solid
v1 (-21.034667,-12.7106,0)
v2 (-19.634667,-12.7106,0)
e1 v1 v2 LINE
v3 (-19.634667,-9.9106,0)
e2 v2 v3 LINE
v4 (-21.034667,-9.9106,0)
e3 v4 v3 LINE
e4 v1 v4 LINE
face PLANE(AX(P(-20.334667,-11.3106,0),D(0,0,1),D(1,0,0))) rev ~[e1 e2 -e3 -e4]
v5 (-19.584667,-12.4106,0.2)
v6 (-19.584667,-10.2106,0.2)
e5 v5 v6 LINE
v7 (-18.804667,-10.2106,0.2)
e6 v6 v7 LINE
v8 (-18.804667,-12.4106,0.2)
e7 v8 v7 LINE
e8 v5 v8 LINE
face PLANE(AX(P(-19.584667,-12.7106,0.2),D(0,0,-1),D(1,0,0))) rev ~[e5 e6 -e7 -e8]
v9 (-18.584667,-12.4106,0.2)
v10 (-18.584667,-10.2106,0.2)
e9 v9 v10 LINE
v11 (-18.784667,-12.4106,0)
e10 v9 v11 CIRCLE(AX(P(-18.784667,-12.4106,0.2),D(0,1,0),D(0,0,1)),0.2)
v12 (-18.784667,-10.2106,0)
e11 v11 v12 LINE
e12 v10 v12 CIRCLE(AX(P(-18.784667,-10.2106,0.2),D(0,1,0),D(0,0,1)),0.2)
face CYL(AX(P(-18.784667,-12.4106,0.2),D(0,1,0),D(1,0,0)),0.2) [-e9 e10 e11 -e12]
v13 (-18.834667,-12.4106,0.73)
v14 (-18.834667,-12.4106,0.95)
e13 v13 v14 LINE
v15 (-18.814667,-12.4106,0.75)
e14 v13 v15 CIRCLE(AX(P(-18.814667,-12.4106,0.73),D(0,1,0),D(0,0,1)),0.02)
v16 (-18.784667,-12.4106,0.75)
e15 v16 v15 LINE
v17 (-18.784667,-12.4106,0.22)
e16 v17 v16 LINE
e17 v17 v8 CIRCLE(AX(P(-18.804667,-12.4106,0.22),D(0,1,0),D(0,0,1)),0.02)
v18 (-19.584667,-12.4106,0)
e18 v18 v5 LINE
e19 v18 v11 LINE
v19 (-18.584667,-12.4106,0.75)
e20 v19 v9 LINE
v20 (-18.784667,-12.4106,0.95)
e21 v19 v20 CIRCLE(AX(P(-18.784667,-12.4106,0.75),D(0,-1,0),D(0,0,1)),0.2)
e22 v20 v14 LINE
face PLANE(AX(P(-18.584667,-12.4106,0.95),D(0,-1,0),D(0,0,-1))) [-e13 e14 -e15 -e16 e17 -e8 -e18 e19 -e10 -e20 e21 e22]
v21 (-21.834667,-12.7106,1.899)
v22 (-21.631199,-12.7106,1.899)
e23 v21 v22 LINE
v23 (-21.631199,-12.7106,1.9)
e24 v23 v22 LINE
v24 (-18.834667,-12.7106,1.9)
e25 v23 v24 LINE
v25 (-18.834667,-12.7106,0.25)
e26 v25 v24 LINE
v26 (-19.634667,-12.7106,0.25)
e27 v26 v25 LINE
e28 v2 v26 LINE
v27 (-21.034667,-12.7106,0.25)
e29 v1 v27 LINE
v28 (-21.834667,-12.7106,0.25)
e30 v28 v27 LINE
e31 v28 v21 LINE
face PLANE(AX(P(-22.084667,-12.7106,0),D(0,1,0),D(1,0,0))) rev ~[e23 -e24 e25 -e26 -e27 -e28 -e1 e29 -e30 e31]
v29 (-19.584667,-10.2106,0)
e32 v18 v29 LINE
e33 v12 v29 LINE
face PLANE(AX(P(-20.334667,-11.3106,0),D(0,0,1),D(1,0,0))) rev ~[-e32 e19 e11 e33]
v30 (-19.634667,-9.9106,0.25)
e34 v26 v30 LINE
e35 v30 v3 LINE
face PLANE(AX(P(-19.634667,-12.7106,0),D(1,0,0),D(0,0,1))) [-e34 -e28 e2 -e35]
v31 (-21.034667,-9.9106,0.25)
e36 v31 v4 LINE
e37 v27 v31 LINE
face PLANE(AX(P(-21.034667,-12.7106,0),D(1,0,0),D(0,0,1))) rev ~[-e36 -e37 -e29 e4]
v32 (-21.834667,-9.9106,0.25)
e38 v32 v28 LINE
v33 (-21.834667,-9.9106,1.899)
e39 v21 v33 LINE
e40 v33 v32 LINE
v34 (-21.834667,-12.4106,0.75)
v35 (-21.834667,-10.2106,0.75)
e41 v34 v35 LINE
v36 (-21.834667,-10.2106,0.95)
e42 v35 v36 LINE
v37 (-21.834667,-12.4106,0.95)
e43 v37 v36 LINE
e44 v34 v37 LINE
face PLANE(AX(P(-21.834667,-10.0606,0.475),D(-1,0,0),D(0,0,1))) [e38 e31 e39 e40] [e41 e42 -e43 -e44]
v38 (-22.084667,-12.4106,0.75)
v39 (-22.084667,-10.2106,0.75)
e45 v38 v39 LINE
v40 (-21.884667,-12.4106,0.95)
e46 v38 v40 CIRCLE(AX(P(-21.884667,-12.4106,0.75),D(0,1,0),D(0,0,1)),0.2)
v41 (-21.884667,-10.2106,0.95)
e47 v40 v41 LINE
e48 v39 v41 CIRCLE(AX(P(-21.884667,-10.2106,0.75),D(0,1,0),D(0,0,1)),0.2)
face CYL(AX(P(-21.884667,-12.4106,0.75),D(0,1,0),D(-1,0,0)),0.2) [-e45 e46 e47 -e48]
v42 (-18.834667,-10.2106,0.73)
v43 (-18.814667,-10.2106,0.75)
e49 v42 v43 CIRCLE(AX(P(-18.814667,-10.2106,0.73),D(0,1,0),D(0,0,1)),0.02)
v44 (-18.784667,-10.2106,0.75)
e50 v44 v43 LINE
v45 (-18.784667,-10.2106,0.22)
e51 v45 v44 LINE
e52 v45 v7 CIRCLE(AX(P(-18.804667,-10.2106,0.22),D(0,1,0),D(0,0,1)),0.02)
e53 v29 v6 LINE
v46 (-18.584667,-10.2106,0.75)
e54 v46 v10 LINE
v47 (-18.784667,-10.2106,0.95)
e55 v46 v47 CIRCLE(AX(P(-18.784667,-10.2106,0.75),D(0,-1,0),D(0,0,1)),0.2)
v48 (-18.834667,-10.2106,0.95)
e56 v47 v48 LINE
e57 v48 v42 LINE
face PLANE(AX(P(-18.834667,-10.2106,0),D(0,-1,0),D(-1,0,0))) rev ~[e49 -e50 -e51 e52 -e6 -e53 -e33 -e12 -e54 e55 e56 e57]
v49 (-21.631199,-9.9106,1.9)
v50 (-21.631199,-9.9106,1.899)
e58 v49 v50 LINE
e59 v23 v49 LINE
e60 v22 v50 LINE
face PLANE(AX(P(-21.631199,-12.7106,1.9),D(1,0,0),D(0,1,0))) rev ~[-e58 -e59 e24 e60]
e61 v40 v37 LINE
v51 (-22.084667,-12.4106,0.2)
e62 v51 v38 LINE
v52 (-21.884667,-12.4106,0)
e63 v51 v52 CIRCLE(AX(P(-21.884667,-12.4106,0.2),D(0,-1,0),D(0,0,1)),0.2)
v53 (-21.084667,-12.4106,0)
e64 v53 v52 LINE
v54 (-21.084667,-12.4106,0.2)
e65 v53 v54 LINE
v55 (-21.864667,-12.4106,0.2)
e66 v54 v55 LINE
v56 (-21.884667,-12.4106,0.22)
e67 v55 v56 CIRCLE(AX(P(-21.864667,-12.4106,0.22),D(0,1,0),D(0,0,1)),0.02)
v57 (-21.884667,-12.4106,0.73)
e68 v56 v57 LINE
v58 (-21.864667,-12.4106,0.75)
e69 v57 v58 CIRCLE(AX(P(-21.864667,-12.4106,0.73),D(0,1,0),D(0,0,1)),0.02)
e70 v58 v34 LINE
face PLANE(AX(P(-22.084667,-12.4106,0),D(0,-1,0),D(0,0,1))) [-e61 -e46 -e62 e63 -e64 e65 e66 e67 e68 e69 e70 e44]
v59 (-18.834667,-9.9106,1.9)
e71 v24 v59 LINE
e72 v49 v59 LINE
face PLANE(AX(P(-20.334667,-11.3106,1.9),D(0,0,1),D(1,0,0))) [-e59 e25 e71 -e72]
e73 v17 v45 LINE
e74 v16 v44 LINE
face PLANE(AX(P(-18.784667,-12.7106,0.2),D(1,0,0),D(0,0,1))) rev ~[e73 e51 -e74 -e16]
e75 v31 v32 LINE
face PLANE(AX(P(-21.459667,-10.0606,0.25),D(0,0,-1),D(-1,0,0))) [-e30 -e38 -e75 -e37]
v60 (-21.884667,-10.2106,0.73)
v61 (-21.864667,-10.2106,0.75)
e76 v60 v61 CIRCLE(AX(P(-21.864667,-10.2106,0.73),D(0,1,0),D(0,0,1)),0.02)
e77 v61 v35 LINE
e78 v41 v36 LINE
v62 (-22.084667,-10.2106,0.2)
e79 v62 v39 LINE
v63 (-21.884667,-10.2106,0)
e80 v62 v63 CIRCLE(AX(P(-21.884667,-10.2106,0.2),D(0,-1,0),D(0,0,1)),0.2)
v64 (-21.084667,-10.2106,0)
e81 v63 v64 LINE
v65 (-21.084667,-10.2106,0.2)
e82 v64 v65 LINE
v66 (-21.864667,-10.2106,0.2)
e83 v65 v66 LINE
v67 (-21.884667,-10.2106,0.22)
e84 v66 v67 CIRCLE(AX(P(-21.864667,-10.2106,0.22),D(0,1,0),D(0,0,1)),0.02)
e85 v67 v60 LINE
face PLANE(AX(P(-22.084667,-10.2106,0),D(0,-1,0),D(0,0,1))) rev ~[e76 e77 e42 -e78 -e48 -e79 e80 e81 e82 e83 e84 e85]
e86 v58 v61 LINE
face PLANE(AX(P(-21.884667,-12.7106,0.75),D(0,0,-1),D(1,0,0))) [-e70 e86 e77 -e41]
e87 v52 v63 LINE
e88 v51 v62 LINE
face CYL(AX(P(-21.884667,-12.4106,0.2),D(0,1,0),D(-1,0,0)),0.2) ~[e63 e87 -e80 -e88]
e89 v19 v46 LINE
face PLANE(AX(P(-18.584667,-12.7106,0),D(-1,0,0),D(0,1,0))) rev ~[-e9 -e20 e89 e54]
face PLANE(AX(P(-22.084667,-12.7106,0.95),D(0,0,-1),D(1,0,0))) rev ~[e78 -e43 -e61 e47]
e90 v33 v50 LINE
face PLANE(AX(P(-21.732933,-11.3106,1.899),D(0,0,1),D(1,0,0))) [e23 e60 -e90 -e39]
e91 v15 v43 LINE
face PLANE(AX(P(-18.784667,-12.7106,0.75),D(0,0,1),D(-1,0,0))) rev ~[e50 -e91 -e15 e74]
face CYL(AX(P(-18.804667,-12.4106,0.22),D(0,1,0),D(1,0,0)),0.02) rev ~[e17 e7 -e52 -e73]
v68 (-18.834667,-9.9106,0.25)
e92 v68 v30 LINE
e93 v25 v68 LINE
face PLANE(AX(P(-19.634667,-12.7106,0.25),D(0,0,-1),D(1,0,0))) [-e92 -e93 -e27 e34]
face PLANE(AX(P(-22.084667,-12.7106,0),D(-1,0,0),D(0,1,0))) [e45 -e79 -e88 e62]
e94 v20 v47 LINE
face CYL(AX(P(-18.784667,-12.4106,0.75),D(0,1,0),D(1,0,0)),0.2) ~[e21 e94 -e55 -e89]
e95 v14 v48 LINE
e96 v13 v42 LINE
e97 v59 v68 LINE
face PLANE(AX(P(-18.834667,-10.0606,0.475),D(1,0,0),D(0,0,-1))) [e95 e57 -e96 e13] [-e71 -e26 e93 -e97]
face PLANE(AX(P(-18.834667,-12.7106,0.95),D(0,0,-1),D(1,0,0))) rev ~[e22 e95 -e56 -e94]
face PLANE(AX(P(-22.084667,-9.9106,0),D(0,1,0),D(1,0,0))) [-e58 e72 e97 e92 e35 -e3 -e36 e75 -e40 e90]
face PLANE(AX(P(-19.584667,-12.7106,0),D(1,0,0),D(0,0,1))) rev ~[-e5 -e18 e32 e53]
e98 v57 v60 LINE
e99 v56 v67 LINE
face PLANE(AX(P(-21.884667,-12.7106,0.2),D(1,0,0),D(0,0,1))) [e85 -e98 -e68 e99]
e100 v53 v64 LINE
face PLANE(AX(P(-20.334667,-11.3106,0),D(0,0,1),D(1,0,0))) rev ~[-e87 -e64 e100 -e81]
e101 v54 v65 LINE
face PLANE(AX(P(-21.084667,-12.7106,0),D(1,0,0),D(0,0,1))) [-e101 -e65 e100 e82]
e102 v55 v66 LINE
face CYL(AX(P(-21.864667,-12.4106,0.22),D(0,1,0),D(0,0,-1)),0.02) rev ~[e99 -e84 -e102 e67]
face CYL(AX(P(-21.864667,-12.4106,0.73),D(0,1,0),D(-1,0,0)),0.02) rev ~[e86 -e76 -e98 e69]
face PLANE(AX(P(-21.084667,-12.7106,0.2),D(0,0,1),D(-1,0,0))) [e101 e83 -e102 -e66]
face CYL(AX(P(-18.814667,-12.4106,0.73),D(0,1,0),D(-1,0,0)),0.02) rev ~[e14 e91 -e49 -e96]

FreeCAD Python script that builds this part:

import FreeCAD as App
import Part
import Sketcher
from FreeCAD import Vector


def edges_at(feature, points):
    """Names of the edges that pass closest to the given points."""
    edges = feature.Shape.Edges
    near = lambda p: min(range(len(edges)), key=lambda i: edges[i].distToShape(Part.Vertex(*p))[0])
    return sorted({f"Edge{near(p) + 1}" for p in points})


def add_polygon(sketch, points):
    """Adds a closed chain of lines whose ends are joined by coincident constraints."""
    first, n = sketch.GeometryCount, len(points)
    for a, b in zip(points, points[1:] + points[:1]):
        sketch.addGeometry(Part.LineSegment(App.Vector(*a, 0), App.Vector(*b, 0)), False)
    for i in range(n):
        sketch.addConstraint(Sketcher.Constraint("Coincident", first + i, 2, first + (i + 1) % n, 1))

doc = App.newDocument("Part")
body = doc.addObject("PartDesign::Body", "Body")

# Sketch on XY plane
sketch1 = body.newObject("Sketcher::SketchObject", "Sketch")
sketch1.AttachmentSupport = (doc.getObject("XY_Plane"), [""])
sketch1.MapMode = "FlatFace"
add_polygon(sketch1, [(-22.1, -9.9), (-22.1, -12.7), (-18.6, -12.7), (-18.6, -9.9)])  # lines 0-3
sketch1.addConstraint([
    Sketcher.Constraint("Vertical", 0),
    Sketcher.Constraint("Horizontal", 1),
    Sketcher.Constraint("Vertical", 2),
    Sketcher.Constraint("Horizontal", 3),
    Sketcher.Constraint("DistanceX", 1, 1, 1, 2, 3.5),
    Sketcher.Constraint("DistanceY", 0, 2, 0, 1, 2.8),
    Sketcher.Constraint("DistanceY", 0, 2, -1, 1, 12.7106),
    Sketcher.Constraint("DistanceX", 0, 2, -1, 1, 22.084667),
])
pad1 = body.newObject("PartDesign::Pad", "Pad")
pad1.Profile = sketch1
pad1.Length = 1.9

# Sketch on XZ plane
sketch2 = body.newObject("Sketcher::SketchObject", "Sketch001")
sketch2.AttachmentSupport = (doc.getObject("XZ_Plane"), [""])
sketch2.MapMode = "FlatFace"
sketch2.AttachmentOffset = App.Placement(Vector(0, 0, 12.7106), App.Rotation())
add_polygon(sketch2, [(-22.08, 1.9), (-22.08, 0.95), (-21.83, 0.95), (-21.83, 1.9)])  # lines 0-3
sketch2.addConstraint([
    Sketcher.Constraint("Vertical", 0),
    Sketcher.Constraint("Horizontal", 1),
    Sketcher.Constraint("Vertical", 2),
    Sketcher.Constraint("Horizontal", 3),
    Sketcher.Constraint("DistanceX", 1, 1, 1, 2, 0.25),
    Sketcher.Constraint("DistanceY", 0, 2, 0, 1, 0.95),
    Sketcher.Constraint("DistanceY", -1, 1, 2, 2, 1.9),
    Sketcher.Constraint("DistanceX", 0, 2, -1, 1, 22.084667),
])
pocket1 = body.newObject("PartDesign::Pocket", "Pocket")
pocket1.Profile = sketch2
pocket1.Type = "UpToFirst"

# Sketch on XZ plane
sketch3 = body.newObject("Sketcher::SketchObject", "Sketch002")
sketch3.AttachmentSupport = (doc.getObject("XZ_Plane"), [""])
sketch3.MapMode = "FlatFace"
sketch3.AttachmentOffset = App.Placement(Vector(0, 0, 12.7106), App.Rotation())
add_polygon(sketch3, [(-18.83, 1.9), (-18.83, 0.95), (-18.58, 0.95), (-18.58, 1.9)])  # lines 0-3
sketch3.addConstraint([
    Sketcher.Constraint("Vertical", 0),
    Sketcher.Constraint("Horizontal", 1),
    Sketcher.Constraint("Vertical", 2),
    Sketcher.Constraint("Horizontal", 3),
    Sketcher.Constraint("DistanceX", 1, 1, 1, 2, 0.25),
    Sketcher.Constraint("DistanceY", 0, 2, 0, 1, 0.95),
    Sketcher.Constraint("DistanceY", -1, 1, 2, 2, 1.9),
    Sketcher.Constraint("DistanceX", 0, 2, -1, 1, 18.834667),
])
pocket2 = body.newObject("PartDesign::Pocket", "Pocket001")
pocket2.Profile = sketch3
pocket2.Type = "UpToFirst"

# Sketch on YZ plane
sketch4 = body.newObject("Sketcher::SketchObject", "Sketch003")
sketch4.AttachmentSupport = (doc.getObject("YZ_Plane"), [""])
sketch4.MapMode = "FlatFace"
sketch4.AttachmentOffset = App.Placement(Vector(0, 0, -22.084667), App.Rotation())
add_polygon(sketch4, [(-12.41, 0), (-12.71, 0), (-12.71, 0.95), (-12.41, 0.95)])  # lines 0-3
add_polygon(sketch4, [(-9.91, 0), (-10.21, 0), (-10.21, 0.95), (-9.91, 0.95)])  # lines 4-7
sketch4.addConstraint([
    Sketcher.Constraint("Horizontal", 0),
    Sketcher.Constraint("Vertical", 1),
    Sketcher.Constraint("Horizontal", 2),
    Sketcher.Constraint("Vertical", 3),
    Sketcher.Constraint("Horizontal", 4),
    Sketcher.Constraint("Vertical", 5),
    Sketcher.Constraint("Horizontal", 6),
    Sketcher.Constraint("Vertical", 7),
    Sketcher.Constraint("PointOnObject", 0, 2, -1),
    Sketcher.Constraint("PointOnObject", 4, 2, -1),
    Sketcher.Constraint("Horizontal", 2, 2, 5, 2),
    Sketcher.Constraint("Equal", 2, 4),
    Sketcher.Constraint("DistanceX", 0, 2, 0, 1, 0.3),
    Sketcher.Constraint("DistanceY", 1, 1, 1, 2, 0.95),
    Sketcher.Constraint("DistanceX", 3, 2, 4, 2, 2.2),
    Sketcher.Constraint("DistanceX", 0, 2, -1, 1, 12.7106),
])
pocket3 = body.newObject("PartDesign::Pocket", "Pocket002")
pocket3.Profile = sketch4
pocket3.Length = 0.25
pocket3.Reversed = True

# Sketch on YZ plane
sketch5 = body.newObject("Sketcher::SketchObject", "Sketch004")
sketch5.AttachmentSupport = (doc.getObject("YZ_Plane"), [""])
sketch5.MapMode = "FlatFace"
sketch5.AttachmentOffset = App.Placement(Vector(0, 0, -18.584667), App.Rotation())
add_polygon(sketch5, [(-9.91, 0.95), (-10.21, 0.95), (-10.21, 0), (-9.91, 0)])  # lines 0-3
add_polygon(sketch5, [(-12.41, 0.95), (-12.71, 0.95), (-12.71, 0), (-12.41, 0)])  # lines 4-7
sketch5.addConstraint([
    Sketcher.Constraint("Horizontal", 0),
    Sketcher.Constraint("Vertical", 1),
    Sketcher.Constraint("Horizontal", 2),
    Sketcher.Constraint("Vertical", 3),
    Sketcher.Constraint("Horizontal", 4),
    Sketcher.Constraint("Vertical", 5),
    Sketcher.Constraint("Horizontal", 6),
    Sketcher.Constraint("Vertical", 7),
    Sketcher.Constraint("PointOnObject", 1, 2, -1),
    Sketcher.Constraint("PointOnObject", 5, 2, -1),
    Sketcher.Constraint("Horizontal", 3, 2, 4, 2),
    Sketcher.Constraint("Equal", 2, 4),
    Sketcher.Constraint("DistanceX", 0, 2, 0, 1, 0.3),
    Sketcher.Constraint("DistanceY", 1, 2, 1, 1, 0.95),
    Sketcher.Constraint("DistanceX", 4, 2, 0, 2, 2.5),
    Sketcher.Constraint("DistanceX", 0, 2, -1, 1, 10.2106),
])
pocket4 = body.newObject("PartDesign::Pocket", "Pocket003")
pocket4.Profile = sketch5
pocket4.Length = 0.25

# Sketch on XZ plane
sketch6 = body.newObject("Sketcher::SketchObject", "Sketch005")
sketch6.AttachmentSupport = (doc.getObject("XZ_Plane"), [""])
sketch6.MapMode = "FlatFace"
sketch6.AttachmentOffset = App.Placement(Vector(0, 0, 12.7106), App.Rotation())
add_polygon(sketch6, [(-19.635, 0.25), (-19.635, 0), (-19.585, 0), (-19.585, 0.25)])  # lines 0-3
add_polygon(sketch6, [(-21.085, 0.25), (-21.085, 0), (-21.035, 0), (-21.035, 0.25)])  # lines 4-7
sketch6.addConstraint([
    Sketcher.Constraint("Vertical", 0),
    Sketcher.Constraint("Horizontal", 1),
    Sketcher.Constraint("Vertical", 2),
    Sketcher.Constraint("Horizontal", 3),
    Sketcher.Constraint("Vertical", 4),
    Sketcher.Constraint("Horizontal", 5),
    Sketcher.Constraint("Vertical", 6),
    Sketcher.Constraint("Horizontal", 7),
    Sketcher.Constraint("PointOnObject", 0, 2, -1),
    Sketcher.Constraint("PointOnObject", 4, 2, -1),
    Sketcher.Constraint("Horizontal", 3, 2, 6, 2),
    Sketcher.Constraint("Equal", 3, 5),
    Sketcher.Constraint("DistanceX", 1, 1, 1, 2, 0.05),
    Sketcher.Constraint("DistanceY", 0, 2, 0, 1, 0.25),
    Sketcher.Constraint("DistanceX", 4, 2, 1, 2, 1.5),
    Sketcher.Constraint("DistanceX", 0, 2, -1, 1, 19.634667),
])
pocket5 = body.newObject("PartDesign::Pocket", "Pocket004")
pocket5.Profile = sketch6
pocket5.Type = "ThroughAll"

# Sketch on XY plane
sketch7 = body.newObject("Sketcher::SketchObject", "Sketch006")
sketch7.AttachmentSupport = (doc.getObject("XY_Plane"), [""])
sketch7.MapMode = "FlatFace"
add_polygon(sketch7, [(-18.83, -12.41), (-18.83, -12.71), (-19.58, -12.71), (-19.58, -12.41)])  # lines 0-3
add_polygon(sketch7, [(-21.08, -12.41), (-21.08, -12.71), (-21.83, -12.71), (-21.83, -12.41)])  # lines 4-7
add_polygon(sketch7, [(-18.83, -9.91), (-18.83, -10.21), (-19.58, -10.21), (-19.58, -9.91)])  # lines 8-11
add_polygon(sketch7, [(-21.08, -9.91), (-21.08, -10.21), (-21.83, -10.21), (-21.83, -9.91)])  # lines 12-15
sketch7.addConstraint([
    Sketcher.Constraint("Vertical", 0),
    Sketcher.Constraint("Horizontal", 1),
    Sketcher.Constraint("Vertical", 2),
    Sketcher.Constraint("Horizontal", 3),
    Sketcher.Constraint("Vertical", 4),
    Sketcher.Constraint("Horizontal", 5),
    Sketcher.Constraint("Vertical", 6),
    Sketcher.Constraint("Horizontal", 7),
    Sketcher.Constraint("Vertical", 8),
    Sketcher.Constraint("Horizontal", 9),
    Sketcher.Constraint("Vertical", 10),
    Sketcher.Constraint("Horizontal", 11),
    Sketcher.Constraint("Vertical", 12),
    Sketcher.Constraint("Horizontal", 13),
    Sketcher.Constraint("Vertical", 14),
    Sketcher.Constraint("Horizontal", 15),
    Sketcher.Constraint("Horizontal", 1, 2, 4, 2),
    Sketcher.Constraint("Horizontal", 3, 2, 6, 2),
    Sketcher.Constraint("Horizontal", 9, 2, 12, 2),
    Sketcher.Constraint("Horizontal", 11, 2, 14, 2),
    Sketcher.Constraint("Vertical", 3, 2, 8, 2),
    Sketcher.Constraint("Vertical", 2, 2, 9, 2),
    Sketcher.Constraint("Vertical", 7, 2, 12, 2),
    Sketcher.Constraint("Vertical", 6, 2, 13, 2),
    Sketcher.Constraint("Equal", 3, 5),
    Sketcher.Constraint("Equal", 6, 8),
    Sketcher.Constraint("DistanceY", 0, 2, 0, 1, 0.3),
    Sketcher.Constraint("DistanceX", 5, 2, 0, 2, 3.0),
    Sketcher.Constraint("DistanceX", 1, 2, 1, 1, 0.75),
    Sketcher.Constraint("DistanceY", 3, 2, 8, 2, 2.2),
    Sketcher.Constraint("DistanceY", 0, 2, -1, 1, 12.7106),
    Sketcher.Constraint("DistanceX", 0, 2, -1, 1, 18.834667),
])
pocket6 = body.newObject("PartDesign::Pocket", "Pocket005")
pocket6.Profile = sketch7
pocket6.Length = 0.25
pocket6.Reversed = True
doc.recompute()

fillet = body.newObject("PartDesign::Fillet", "Fillet")
fillet.Base = (pocket6, edges_at(pocket6, [
    (-22.085, -11.311, 0.95),
    (-22.085, -11.311, 0),
    (-18.585, -11.311, 0.95),
    (-18.585, -11.311, 0),
]))
fillet.Radius = 0.2

# Sketch on XZ plane
sketch8 = body.newObject("Sketcher::SketchObject", "Sketch007")
sketch8.AttachmentSupport = (doc.getObject("XZ_Plane"), [""])
sketch8.MapMode = "FlatFace"
sketch8.AttachmentOffset = App.Placement(Vector(0, 0, 12.7106), App.Rotation())
add_polygon(sketch8, [(-21.885, 0.2), (-21.085, 0.2), (-21.085, 0.25), (-21.835, 0.25), (-21.835, 0.75), (-21.885, 0.75)])  # lines 0-5
add_polygon(sketch8, [(-19.585, 0.25), (-19.585, 0.2), (-18.785, 0.2), (-18.785, 0.75), (-18.835, 0.75), (-18.835, 0.25)])  # lines 6-11
sketch8.addConstraint([
    Sketcher.Constraint("Horizontal", 0),
    Sketcher.Constraint("Vertical", 1),
    Sketcher.Constraint("Horizontal", 2),
    Sketcher.Constraint("Vertical", 3),
    Sketcher.Constraint("Horizontal", 4),
    Sketcher.Constraint("Vertical", 5),
    Sketcher.Constraint("Vertical", 6),
    Sketcher.Constraint("Horizontal", 7),
    Sketcher.Constraint("Vertical", 8),
    Sketcher.Constraint("Horizontal", 9),
    Sketcher.Constraint("Vertical", 10),
    Sketcher.Constraint("Horizontal", 11),
    Sketcher.Constraint("Horizontal", 5, 2, 6, 2),
    Sketcher.Constraint("Horizontal", 4, 2, 8, 2),
    Sketcher.Constraint("Horizontal", 2, 2, 10, 2),
    Sketcher.Constraint("Equal", 0, 7),
    Sketcher.Constraint("Equal", 4, 9),
    Sketcher.Constraint("Equal", 9, 1),
    Sketcher.Constraint("DistanceX", 0, 1, 0, 2, 0.8),
    Sketcher.Constraint("DistanceY", 3, 1, 3, 2, 0.5),
    Sketcher.Constraint("DistanceX", 2, 2, 2, 1, 0.75),
    Sketcher.Constraint("DistanceY", -1, 1, 0, 2, 0.2),
    Sketcher.Constraint("DistanceX", 0, 2, 6, 2, 1.5),
    Sketcher.Constraint("DistanceX", 0, 2, -1, 1, 21.084667),
])
pocket7 = body.newObject("PartDesign::Pocket", "Pocket006")
pocket7.Profile = sketch8
pocket7.Type = "ThroughAll"
doc.recompute()

fillet2 = body.newObject("PartDesign::Fillet", "Fillet001")
fillet2.Base = (pocket7, edges_at(pocket7, [
    (-21.885, -11.311, 0.2),
    (-21.885, -11.311, 0.75),
    (-18.835, -11.311, 0.75),
    (-18.785, -11.311, 0.2),
]))
fillet2.Radius = 0.02

# Sketch on XY plane
sketch9 = body.newObject("Sketcher::SketchObject", "Sketch008")
sketch9.AttachmentSupport = (doc.getObject("XY_Plane"), [""])
sketch9.MapMode = "FlatFace"
sketch9.AttachmentOffset = App.Placement(Vector(0, 0, 1.9), App.Rotation())
add_polygon(sketch9, [(-21.83, -9.91), (-21.83, -12.71), (-21.63, -12.71), (-21.63, -9.91)])  # lines 0-3
sketch9.addConstraint([
    Sketcher.Constraint("Vertical", 0),
    Sketcher.Constraint("Horizontal", 1),
    Sketcher.Constraint("Vertical", 2),
    Sketcher.Constraint("Horizontal", 3),
    Sketcher.Constraint("DistanceY", 0, 2, 0, 1, 2.8),
    Sketcher.Constraint("DistanceY", 0, 2, -1, 1, 12.7106),
    Sketcher.Constraint("DistanceX", 1, 2, -1, 1, 21.631199),
    Sketcher.Constraint("DistanceX", 1, 1, 1, 2, 0.203467),
])
pocket8 = body.newObject("PartDesign::Pocket", "Pocket007")
pocket8.Profile = sketch9
pocket8.Length = 0.001

doc.recompute()
